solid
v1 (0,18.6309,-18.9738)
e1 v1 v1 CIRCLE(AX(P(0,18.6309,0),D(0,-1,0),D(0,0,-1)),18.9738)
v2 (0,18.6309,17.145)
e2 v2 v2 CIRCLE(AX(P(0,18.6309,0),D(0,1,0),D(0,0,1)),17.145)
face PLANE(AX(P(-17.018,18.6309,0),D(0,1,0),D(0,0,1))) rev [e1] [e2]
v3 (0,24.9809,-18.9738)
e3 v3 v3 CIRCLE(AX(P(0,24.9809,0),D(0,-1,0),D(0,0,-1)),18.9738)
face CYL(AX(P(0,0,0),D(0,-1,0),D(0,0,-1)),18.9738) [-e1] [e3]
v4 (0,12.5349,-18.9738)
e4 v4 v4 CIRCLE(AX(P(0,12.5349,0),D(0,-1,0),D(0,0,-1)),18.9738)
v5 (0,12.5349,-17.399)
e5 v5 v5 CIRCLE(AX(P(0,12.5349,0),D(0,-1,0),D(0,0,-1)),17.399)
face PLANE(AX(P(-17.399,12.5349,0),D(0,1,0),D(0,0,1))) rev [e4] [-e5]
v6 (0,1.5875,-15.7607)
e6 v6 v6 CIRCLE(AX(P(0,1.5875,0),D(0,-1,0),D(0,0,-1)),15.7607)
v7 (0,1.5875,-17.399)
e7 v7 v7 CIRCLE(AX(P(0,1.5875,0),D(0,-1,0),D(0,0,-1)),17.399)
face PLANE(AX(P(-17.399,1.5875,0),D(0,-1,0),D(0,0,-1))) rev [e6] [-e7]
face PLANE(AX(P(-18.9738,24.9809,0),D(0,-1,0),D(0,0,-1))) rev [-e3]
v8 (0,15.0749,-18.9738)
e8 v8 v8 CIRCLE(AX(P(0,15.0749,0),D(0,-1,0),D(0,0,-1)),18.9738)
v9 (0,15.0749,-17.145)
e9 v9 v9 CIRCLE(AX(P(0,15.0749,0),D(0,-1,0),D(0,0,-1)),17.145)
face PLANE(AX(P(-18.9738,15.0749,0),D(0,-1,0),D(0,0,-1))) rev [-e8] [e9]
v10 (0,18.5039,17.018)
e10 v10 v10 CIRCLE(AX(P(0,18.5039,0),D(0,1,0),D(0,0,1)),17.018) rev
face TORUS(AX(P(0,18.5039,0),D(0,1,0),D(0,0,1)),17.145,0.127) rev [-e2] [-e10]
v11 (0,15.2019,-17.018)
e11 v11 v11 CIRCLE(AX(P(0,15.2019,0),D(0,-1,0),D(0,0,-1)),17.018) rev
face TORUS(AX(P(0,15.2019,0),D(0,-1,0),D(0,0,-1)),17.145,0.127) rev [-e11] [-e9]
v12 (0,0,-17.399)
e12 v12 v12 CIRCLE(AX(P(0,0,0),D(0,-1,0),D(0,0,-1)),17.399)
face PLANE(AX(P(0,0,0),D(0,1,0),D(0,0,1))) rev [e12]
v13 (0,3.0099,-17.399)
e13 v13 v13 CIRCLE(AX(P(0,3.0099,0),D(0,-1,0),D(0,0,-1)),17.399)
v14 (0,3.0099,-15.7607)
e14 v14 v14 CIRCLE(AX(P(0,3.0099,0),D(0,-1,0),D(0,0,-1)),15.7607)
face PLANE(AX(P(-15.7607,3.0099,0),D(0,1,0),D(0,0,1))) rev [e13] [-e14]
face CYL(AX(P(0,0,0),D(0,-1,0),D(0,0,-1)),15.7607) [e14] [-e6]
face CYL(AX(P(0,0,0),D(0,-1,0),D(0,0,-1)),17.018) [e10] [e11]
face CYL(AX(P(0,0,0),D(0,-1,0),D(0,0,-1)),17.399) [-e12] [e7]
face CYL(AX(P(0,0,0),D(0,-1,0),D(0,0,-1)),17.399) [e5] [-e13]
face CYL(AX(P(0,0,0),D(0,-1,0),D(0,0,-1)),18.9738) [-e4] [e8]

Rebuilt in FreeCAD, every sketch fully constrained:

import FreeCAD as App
import Part
import Sketcher

V = App.Vector
Q = App.Units.Quantity


def edges_at(feature, points):
    """Names of the edges that pass closest to the given points."""
    edges = feature.Shape.Edges
    near = lambda p: min(range(len(edges)), key=lambda i: edges[i].distToShape(Part.Vertex(*p))[0])
    return sorted({f"Edge{near(p) + 1}" for p in points})


def add_polygon(sketch, points):
    """Adds a closed chain of lines whose ends are joined by coincident constraints."""
    first, n = sketch.GeometryCount, len(points)
    for a, b in zip(points, points[1:] + points[:1]):
        sketch.addGeometry(Part.LineSegment(App.Vector(*a, 0), App.Vector(*b, 0)), False)
    for i in range(n):
        sketch.addConstraint(Sketcher.Constraint("Coincident", first + i, 2, first + (i + 1) % n, 1))

doc = App.newDocument("Part")
body = doc.addObject("PartDesign::Body", "Body")

# Sketch on XY plane
sketch1 = doc.addObject("Sketcher::SketchObject", "Sketch")
body.addObject(sketch1)
sketch1.AttachmentSupport = (doc.XY_Plane, [""])
sketch1.MapMode = "FlatFace"
add_polygon(sketch1, [(-17.4, 0), (0, 0), (0, 25), (-19, 25), (-19, 18.6), (-17, 18.6), (-17, 15.1), (-19, 15.1), (-19, 12.5), (-17.4, 12.5), (-17.4, 3), (-15.8, 3), (-15.8, 1.6), (-17.4, 1.6)])  # lines 0-13
sketch1.addConstraint(Sketcher.Constraint("Horizontal", 0))
sketch1.addConstraint(Sketcher.Constraint("Vertical", 1))
sketch1.addConstraint(Sketcher.Constraint("Horizontal", 2))
sketch1.addConstraint(Sketcher.Constraint("Vertical", 3))
sketch1.addConstraint(Sketcher.Constraint("Horizontal", 4))
sketch1.addConstraint(Sketcher.Constraint("Vertical", 5))
sketch1.addConstraint(Sketcher.Constraint("Horizontal", 6))
sketch1.addConstraint(Sketcher.Constraint("Vertical", 7))
sketch1.addConstraint(Sketcher.Constraint("Horizontal", 8))
sketch1.addConstraint(Sketcher.Constraint("Vertical", 9))
sketch1.addConstraint(Sketcher.Constraint("Horizontal", 10))
sketch1.addConstraint(Sketcher.Constraint("Vertical", 11))
sketch1.addConstraint(Sketcher.Constraint("Horizontal", 12))
sketch1.addConstraint(Sketcher.Constraint("Vertical", 13))
sketch1.addConstraint(Sketcher.Constraint("Coincident", 0, 2, -1, 1))
sketch1.addConstraint(Sketcher.Constraint("Vertical", 3, 2, 6, 2))
sketch1.addConstraint(Sketcher.Constraint("Vertical", 9, 2, 12, 2))
sketch1.addConstraint(Sketcher.Constraint("DistanceY", 7, 2, 7, 1, Q("0.1 in")))
sketch1.addConstraint(Sketcher.Constraint("DistanceY", 3, 2, 3, 1, Q("0.25 in")))
sketch1.addConstraint(Sketcher.Constraint("DistanceY", 5, 2, 5, 1, Q("0.14 in")))
sketch1.addConstraint(Sketcher.Constraint("DistanceX", 0, 1, 0, 2, Q("0.685 in")))
sketch1.addConstraint(Sketcher.Constraint("DistanceX", 2, 2, 2, 1, Q("0.747 in")))
sketch1.addConstraint(Sketcher.Constraint("DistanceX", 4, 1, 4, 2, Q("0.077 in")))
sketch1.addConstraint(Sketcher.Constraint("DistanceY", 9, 2, 9, 1, Q("0.375 in")))
sketch1.addConstraint(Sketcher.Constraint("DistanceY", 11, 2, 11, 1, Q("0.056 in")))
sketch1.addConstraint(Sketcher.Constraint("DistanceY", 13, 2, 13, 1, Q("0.0625 in")))
sketch1.addConstraint(Sketcher.Constraint("DistanceX", 10, 1, 10, 2, Q("0.0645 in")))
revolution = doc.addObject("PartDesign::Revolution", "Revolution")
body.addObject(revolution)
revolution.Profile = sketch1
revolution.ReferenceAxis = (sketch1, ["V_Axis"])
revolution.Angle = 360
doc.recompute()

fillet = doc.addObject("PartDesign::Fillet", "Fillet")
body.addObject(fillet)
fillet.Base = (revolution, edges_at(revolution, [(0, 18.631, 17.018), (0, 15.075, 17.018)]))
fillet.Radius = Q("0.005 in")

doc.recompute()
